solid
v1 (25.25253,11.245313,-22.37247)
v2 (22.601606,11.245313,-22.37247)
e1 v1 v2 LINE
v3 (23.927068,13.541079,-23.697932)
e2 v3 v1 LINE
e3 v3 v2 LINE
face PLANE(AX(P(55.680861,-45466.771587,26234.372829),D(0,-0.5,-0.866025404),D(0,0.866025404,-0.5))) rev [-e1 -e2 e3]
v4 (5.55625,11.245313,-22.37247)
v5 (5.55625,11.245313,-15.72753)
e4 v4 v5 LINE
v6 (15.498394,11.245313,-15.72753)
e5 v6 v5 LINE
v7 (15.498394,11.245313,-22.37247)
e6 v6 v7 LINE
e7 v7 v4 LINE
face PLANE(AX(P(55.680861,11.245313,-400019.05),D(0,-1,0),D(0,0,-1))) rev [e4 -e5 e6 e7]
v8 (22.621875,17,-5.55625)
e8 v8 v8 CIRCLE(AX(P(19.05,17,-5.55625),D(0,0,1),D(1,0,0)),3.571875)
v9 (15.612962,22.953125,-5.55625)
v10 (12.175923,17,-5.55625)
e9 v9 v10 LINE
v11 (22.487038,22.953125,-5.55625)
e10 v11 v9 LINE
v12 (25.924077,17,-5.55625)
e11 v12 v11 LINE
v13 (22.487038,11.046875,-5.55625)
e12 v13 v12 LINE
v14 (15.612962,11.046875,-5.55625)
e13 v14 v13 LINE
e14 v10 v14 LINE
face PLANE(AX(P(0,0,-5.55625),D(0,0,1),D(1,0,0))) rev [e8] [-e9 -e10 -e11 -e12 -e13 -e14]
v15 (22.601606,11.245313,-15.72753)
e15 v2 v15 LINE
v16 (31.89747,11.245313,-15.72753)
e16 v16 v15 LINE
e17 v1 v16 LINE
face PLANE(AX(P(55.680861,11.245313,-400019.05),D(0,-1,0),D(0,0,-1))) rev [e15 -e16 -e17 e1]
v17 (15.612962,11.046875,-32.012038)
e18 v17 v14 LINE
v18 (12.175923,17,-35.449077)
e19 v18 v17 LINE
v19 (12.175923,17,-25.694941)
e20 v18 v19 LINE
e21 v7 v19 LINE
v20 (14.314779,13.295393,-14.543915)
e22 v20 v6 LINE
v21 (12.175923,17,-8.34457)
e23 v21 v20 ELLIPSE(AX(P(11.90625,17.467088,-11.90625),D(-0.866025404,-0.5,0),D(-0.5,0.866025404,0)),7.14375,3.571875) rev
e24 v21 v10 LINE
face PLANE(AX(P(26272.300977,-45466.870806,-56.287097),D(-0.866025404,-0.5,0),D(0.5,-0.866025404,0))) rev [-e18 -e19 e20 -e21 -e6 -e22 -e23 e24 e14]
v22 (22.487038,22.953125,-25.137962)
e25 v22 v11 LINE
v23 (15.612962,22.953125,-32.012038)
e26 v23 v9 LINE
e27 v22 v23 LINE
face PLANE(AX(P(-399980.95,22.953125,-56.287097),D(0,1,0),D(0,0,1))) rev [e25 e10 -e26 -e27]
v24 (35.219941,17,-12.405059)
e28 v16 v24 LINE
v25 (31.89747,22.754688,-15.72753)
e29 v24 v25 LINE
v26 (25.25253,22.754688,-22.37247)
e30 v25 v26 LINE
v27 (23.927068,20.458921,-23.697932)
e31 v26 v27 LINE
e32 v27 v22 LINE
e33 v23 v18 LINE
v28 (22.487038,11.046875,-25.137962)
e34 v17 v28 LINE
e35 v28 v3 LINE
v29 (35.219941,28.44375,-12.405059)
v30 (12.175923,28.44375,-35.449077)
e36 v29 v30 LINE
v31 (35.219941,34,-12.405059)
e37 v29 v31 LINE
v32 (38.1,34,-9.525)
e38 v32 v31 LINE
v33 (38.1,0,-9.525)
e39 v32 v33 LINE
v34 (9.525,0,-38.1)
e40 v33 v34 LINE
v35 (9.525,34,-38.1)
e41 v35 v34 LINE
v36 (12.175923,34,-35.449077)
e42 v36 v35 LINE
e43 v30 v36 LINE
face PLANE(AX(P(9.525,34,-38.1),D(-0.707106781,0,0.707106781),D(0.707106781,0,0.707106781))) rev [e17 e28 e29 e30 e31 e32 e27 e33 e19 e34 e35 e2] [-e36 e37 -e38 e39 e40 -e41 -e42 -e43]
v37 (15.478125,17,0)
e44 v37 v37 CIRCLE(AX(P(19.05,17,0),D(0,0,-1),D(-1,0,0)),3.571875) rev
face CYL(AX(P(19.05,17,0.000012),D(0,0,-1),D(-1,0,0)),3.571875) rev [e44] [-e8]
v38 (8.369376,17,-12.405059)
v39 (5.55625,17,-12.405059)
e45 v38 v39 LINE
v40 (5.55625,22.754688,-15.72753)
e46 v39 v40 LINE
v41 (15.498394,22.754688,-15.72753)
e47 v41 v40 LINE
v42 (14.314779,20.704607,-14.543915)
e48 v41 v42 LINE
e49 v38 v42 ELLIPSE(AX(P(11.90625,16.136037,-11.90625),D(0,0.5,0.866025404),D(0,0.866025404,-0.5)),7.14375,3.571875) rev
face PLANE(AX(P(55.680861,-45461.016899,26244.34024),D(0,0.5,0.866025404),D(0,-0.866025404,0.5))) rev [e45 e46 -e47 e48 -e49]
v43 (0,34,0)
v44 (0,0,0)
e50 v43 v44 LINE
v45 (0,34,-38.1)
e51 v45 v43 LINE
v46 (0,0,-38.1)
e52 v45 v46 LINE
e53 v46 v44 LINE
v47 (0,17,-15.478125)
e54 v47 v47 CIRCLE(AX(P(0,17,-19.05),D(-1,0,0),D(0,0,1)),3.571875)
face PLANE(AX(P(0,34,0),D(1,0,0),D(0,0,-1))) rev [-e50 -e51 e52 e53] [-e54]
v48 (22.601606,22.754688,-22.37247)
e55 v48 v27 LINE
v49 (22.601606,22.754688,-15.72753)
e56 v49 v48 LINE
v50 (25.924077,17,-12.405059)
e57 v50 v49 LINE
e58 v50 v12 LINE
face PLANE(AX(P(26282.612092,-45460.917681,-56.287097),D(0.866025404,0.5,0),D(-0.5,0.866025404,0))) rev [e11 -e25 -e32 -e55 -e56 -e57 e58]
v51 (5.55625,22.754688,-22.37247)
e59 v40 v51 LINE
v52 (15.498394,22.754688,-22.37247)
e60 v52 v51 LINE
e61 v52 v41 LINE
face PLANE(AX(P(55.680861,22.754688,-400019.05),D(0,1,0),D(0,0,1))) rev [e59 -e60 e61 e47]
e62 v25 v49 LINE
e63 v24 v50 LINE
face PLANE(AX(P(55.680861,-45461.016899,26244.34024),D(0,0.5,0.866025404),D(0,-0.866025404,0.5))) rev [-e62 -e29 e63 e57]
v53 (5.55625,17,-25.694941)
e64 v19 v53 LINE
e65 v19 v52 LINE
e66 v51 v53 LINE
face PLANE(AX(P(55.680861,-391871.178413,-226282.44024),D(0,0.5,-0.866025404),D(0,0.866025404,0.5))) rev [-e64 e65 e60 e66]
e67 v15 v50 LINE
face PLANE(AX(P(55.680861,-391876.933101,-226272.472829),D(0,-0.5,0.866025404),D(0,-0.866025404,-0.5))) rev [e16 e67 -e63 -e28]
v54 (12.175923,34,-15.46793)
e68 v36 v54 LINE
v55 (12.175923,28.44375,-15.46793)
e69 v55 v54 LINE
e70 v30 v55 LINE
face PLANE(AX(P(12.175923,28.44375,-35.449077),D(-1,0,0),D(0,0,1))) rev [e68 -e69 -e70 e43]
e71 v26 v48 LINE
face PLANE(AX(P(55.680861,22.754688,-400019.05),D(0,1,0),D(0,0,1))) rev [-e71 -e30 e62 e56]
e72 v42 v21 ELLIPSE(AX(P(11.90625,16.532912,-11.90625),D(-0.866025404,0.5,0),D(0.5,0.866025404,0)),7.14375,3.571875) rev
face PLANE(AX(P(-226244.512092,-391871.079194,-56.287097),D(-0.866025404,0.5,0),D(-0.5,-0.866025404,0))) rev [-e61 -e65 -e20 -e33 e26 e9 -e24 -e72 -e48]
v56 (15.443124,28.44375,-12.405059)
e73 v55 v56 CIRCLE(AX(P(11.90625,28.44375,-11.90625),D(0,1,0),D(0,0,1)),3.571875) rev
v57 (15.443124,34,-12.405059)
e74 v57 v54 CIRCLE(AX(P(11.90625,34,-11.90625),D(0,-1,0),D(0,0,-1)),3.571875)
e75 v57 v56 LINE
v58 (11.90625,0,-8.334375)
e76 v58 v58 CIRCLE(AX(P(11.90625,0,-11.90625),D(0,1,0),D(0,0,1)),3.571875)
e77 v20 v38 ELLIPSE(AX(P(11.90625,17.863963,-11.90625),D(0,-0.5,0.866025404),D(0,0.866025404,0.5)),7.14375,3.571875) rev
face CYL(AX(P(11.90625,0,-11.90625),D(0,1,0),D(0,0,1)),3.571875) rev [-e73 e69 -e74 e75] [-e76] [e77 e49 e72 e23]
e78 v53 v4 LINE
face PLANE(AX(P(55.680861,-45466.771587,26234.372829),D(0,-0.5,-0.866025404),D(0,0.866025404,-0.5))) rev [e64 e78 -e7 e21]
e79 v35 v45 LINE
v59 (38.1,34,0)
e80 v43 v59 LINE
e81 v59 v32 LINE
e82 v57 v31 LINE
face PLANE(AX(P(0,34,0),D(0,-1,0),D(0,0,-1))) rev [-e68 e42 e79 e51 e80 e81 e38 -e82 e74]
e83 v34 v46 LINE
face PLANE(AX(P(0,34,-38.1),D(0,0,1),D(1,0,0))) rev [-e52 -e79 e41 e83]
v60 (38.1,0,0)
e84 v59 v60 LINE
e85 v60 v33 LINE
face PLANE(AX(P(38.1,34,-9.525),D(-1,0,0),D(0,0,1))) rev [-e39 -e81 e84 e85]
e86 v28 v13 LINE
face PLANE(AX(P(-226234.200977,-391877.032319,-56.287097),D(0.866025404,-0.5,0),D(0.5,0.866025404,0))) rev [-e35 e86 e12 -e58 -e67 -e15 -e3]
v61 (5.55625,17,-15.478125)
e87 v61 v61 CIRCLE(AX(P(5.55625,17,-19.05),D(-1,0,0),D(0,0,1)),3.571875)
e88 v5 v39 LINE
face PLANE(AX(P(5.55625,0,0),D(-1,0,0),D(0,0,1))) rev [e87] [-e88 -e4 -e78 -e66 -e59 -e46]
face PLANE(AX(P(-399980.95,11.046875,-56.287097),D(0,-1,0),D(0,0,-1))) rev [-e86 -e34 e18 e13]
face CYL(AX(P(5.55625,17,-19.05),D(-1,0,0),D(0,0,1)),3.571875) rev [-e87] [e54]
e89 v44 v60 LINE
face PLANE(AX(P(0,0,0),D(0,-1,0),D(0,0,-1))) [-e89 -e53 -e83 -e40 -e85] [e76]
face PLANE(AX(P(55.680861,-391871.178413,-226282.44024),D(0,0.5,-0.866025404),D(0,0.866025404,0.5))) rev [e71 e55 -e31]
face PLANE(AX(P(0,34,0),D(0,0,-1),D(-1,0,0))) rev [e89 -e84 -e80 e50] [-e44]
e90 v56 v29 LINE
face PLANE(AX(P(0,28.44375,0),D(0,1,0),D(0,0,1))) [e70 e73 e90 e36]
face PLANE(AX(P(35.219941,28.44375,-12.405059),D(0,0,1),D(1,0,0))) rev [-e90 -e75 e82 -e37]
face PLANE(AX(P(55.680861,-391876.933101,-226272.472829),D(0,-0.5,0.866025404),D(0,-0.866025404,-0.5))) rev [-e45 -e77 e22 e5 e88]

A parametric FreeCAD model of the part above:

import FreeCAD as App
import Part
import Sketcher
from FreeCAD import Vector
Q = App.Units.Quantity


def add_polygon(sketch, points):
    """Adds a closed chain of lines whose ends are joined by coincident constraints."""
    first, n = sketch.GeometryCount, len(points)
    for a, b in zip(points, points[1:] + points[:1]):
        sketch.addGeometry(Part.LineSegment(App.Vector(*a, 0), App.Vector(*b, 0)), False)
    for i in range(n):
        sketch.addConstraint(Sketcher.Constraint("Coincident", first + i, 2, first + (i + 1) % n, 1))

doc = App.newDocument("Part")
body = doc.addObject("PartDesign::Body", "Body")

# Sketch on XZ plane
sketch1 = body.newObject("Sketcher::SketchObject", "Sketch")
sketch1.AttachmentSupport = (doc.getObject("XZ_Plane"), [""])
sketch1.MapMode = "FlatFace"
add_polygon(sketch1, [(0, 0), (38, 0), (38, -10), (10, -38), (0, -38)])  # lines 0-4
sketch1.addConstraint(Sketcher.Constraint("Horizontal", 0))
sketch1.addConstraint(Sketcher.Constraint("Vertical", 1))
sketch1.addConstraint(Sketcher.Constraint("Horizontal", 3))
sketch1.addConstraint(Sketcher.Constraint("Vertical", 4))
sketch1.addConstraint(Sketcher.Constraint("Coincident", 4, 2, -1, 1))
sketch1.addConstraint(Sketcher.Constraint("Equal", 3, 1))
sketch1.addConstraint(Sketcher.Constraint("Equal", 0, 4))
sketch1.addConstraint(Sketcher.Constraint("DistanceX", 0, 1, 0, 2, Q("1.5 in")))
sketch1.addConstraint(Sketcher.Constraint("DistanceX", 3, 2, 3, 1, Q("0.375 in")))
pad1 = body.newObject("PartDesign::Pad", "Pad")
pad1.Profile = sketch1
pad1.Length = 34
pad1.Reversed = True

# Sketch on XY plane
sketch2 = body.newObject("Sketcher::SketchObject", "Sketch001")
sketch2.AttachmentSupport = (doc.getObject("XY_Plane"), [""])
sketch2.MapMode = "FlatFace"
sketch2.addGeometry(Part.Circle(Vector(19.1, 17, 0), Vector(0, 0, 1), 3.6), False)
sketch2.addConstraint(Sketcher.Constraint("Diameter", 0, Q("0.28125 in")))
sketch2.addConstraint(Sketcher.Constraint("DistanceX", -1, 1, 0, 3, Q("0.75 in")))
sketch2.addConstraint(Sketcher.Constraint("DistanceY", -1, 1, 0, 3, Q("17 mm")))
pocket1 = body.newObject("PartDesign::Pocket", "Pocket")
pocket1.Profile = sketch2
pocket1.Type = "TwoLengths"
pocket1.Length = 1
pocket1.Length2 = Q("0.21875 in")
pocket1.Reversed = True

# Sketch on YZ plane
sketch3 = body.newObject("Sketcher::SketchObject", "Sketch002")
sketch3.AttachmentSupport = (doc.getObject("YZ_Plane"), [""])
sketch3.MapMode = "FlatFace"
sketch3.addGeometry(Part.Circle(Vector(17, -19.1, 0), Vector(0, 0, 1), 3.6), False)
sketch3.addConstraint(Sketcher.Constraint("Diameter", 0, Q("0.28125 in")))
sketch3.addConstraint(Sketcher.Constraint("DistanceY", 0, 3, -1, 1, Q("0.75 in")))
sketch3.addConstraint(Sketcher.Constraint("DistanceX", -1, 1, 0, 3, Q("17 mm")))
pocket2 = body.newObject("PartDesign::Pocket", "Pocket001")
pocket2.Profile = sketch3
pocket2.Length = Q("0.21875 in")
pocket2.Reversed = True

# Sketch on XZ plane
sketch4 = body.newObject("Sketcher::SketchObject", "Sketch003")
sketch4.AttachmentSupport = (doc.getObject("XZ_Plane"), [""])
sketch4.MapMode = "FlatFace"
sketch4.AttachmentOffset = App.Placement(Vector(0, 0, -34), App.Rotation())
sketch4.addGeometry(Part.Circle(Vector(11.9, -11.9, 0), Vector(0, 0, 1), 3.6), False)
sketch4.addConstraint(Sketcher.Constraint("Diameter", 0, Q("0.28125 in")))
sketch4.addConstraint(Sketcher.Constraint("DistanceX", -1, 1, 0, 3, Q("0.46875 in")))
sketch4.addConstraint(Sketcher.Constraint("DistanceY", 0, 3, -1, 1, Q("0.46875 in")))
pocket3 = body.newObject("PartDesign::Pocket", "Pocket002")
pocket3.Profile = sketch4
pocket3.Type = "ThroughAll"
pocket3.Midplane = True

# Sketch on YZ plane
sketch5 = body.newObject("Sketcher::SketchObject", "Sketch004")
sketch5.AttachmentSupport = (doc.getObject("YZ_Plane"), [""])
sketch5.MapMode = "FlatFace"
sketch5.AttachmentOffset = App.Placement(Vector(0, 0, 0.21875 * 25.4), App.Rotation())
add_polygon(sketch5, [(23, -22), (17, -26), (11, -22), (11, -16), (17, -12), (23, -16)])  # lines 0-5
sketch5.addConstraint(Sketcher.Constraint("Vertical", 2))
sketch5.addConstraint(Sketcher.Constraint("Vertical", 5))
sketch5.addConstraint(Sketcher.Constraint("Parallel", 0, 3))
sketch5.addConstraint(Sketcher.Constraint("Parallel", 1, 4))
sketch5.addConstraint(Sketcher.Constraint("Horizontal", 2, 2, 4, 2))
sketch5.addConstraint(Sketcher.Constraint("Horizontal", 1, 2, 5, 2))
sketch5.addConstraint(Sketcher.Constraint("Vertical", 0, 2, 3, 2))
sketch5.addConstraint(Sketcher.Constraint("Angle", 0, Q("-150 deg")))
sketch5.addConstraint(Sketcher.Constraint("DistanceX", 2, 2, 4, 2, Q("0.453125 in")))
sketch5.addConstraint(Sketcher.Constraint("DistanceY", 2, 1, 2, 2, Q("6.644941 mm")))
sketch5.addConstraint(Sketcher.Constraint("DistanceX", -1, 1, 0, 2, Q("17 mm")))
sketch5.addConstraint(Sketcher.Constraint("DistanceY", 0, 2, -1, 1, Q("25.694941 mm")))
pocket4 = body.newObject("PartDesign::Pocket", "Pocket003")
pocket4.Profile = sketch5
pocket4.Length = Q("1.28125 in")
pocket4.Reversed = True

# Sketch on XY plane
sketch6 = body.newObject("Sketcher::SketchObject", "Sketch005")
sketch6.AttachmentSupport = (doc.getObject("XY_Plane"), [""])
sketch6.MapMode = "FlatFace"
sketch6.AttachmentOffset = App.Placement(Vector(0, 0, -0.21875 * 25.4), App.Rotation())
add_polygon(sketch6, [(16, 23), (12, 17), (16, 11), (22, 11), (26, 17), (22, 23)])  # lines 0-5
sketch6.addConstraint(Sketcher.Constraint("Horizontal", 2))
sketch6.addConstraint(Sketcher.Constraint("Horizontal", 5))
sketch6.addConstraint(Sketcher.Constraint("Parallel", 0, 3))
sketch6.addConstraint(Sketcher.Constraint("Parallel", 1, 4))
sketch6.addConstraint(Sketcher.Constraint("Horizontal", 0, 2, 3, 2))
sketch6.addConstraint(Sketcher.Constraint("Vertical", 2, 2, 4, 2))
sketch6.addConstraint(Sketcher.Constraint("Vertical", 1, 2, 5, 2))
sketch6.addConstraint(Sketcher.Constraint("Angle", 0, Q("-120 deg")))
sketch6.addConstraint(Sketcher.Constraint("DistanceY", 1, 2, 0, 2, Q("0.234375 in")))
sketch6.addConstraint(Sketcher.Constraint("DistanceY", -1, 1, 0, 2, Q("17 mm")))
sketch6.addConstraint(Sketcher.Constraint("DistanceX", 2, 1, 2, 2, Q("6.874077 mm")))
sketch6.addConstraint(Sketcher.Constraint("DistanceX", -1, 1, 1, 2, Q("15.612962 mm")))
pocket5 = body.newObject("PartDesign::Pocket", "Pocket004")
pocket5.Profile = sketch6
pocket5.Length = Q("1.28125 in")

# Sketch on XZ plane
sketch7 = body.newObject("Sketcher::SketchObject", "Sketch006")
sketch7.AttachmentSupport = (doc.getObject("XZ_Plane"), [""])
sketch7.MapMode = "FlatFace"
sketch7.AttachmentOffset = App.Placement(Vector(0, 0, -34), App.Rotation())
add_polygon(sketch7, [(12, -12), (35, -12), (12, -35)])  # lines 0-2
sketch7.addConstraint(Sketcher.Constraint("Horizontal", 0))
sketch7.addConstraint(Sketcher.Constraint("Vertical", 2))
sketch7.addConstraint(Sketcher.Constraint("Equal", 0, 2))
sketch7.addConstraint(Sketcher.Constraint("Distance", 1, Q("32.589162 mm")))
sketch7.addConstraint(Sketcher.Constraint("DistanceX", -1, 1, 0, 2, Q("35.219941 mm")))
sketch7.addConstraint(Sketcher.Constraint("DistanceY", 0, 2, -1, 1, Q("12.405059 mm")))
pocket6 = body.newObject("PartDesign::Pocket", "Pocket005")
pocket6.Profile = sketch7
pocket6.Length = Q("0.21875 in")
pocket6.Reversed = True

doc.recompute()
